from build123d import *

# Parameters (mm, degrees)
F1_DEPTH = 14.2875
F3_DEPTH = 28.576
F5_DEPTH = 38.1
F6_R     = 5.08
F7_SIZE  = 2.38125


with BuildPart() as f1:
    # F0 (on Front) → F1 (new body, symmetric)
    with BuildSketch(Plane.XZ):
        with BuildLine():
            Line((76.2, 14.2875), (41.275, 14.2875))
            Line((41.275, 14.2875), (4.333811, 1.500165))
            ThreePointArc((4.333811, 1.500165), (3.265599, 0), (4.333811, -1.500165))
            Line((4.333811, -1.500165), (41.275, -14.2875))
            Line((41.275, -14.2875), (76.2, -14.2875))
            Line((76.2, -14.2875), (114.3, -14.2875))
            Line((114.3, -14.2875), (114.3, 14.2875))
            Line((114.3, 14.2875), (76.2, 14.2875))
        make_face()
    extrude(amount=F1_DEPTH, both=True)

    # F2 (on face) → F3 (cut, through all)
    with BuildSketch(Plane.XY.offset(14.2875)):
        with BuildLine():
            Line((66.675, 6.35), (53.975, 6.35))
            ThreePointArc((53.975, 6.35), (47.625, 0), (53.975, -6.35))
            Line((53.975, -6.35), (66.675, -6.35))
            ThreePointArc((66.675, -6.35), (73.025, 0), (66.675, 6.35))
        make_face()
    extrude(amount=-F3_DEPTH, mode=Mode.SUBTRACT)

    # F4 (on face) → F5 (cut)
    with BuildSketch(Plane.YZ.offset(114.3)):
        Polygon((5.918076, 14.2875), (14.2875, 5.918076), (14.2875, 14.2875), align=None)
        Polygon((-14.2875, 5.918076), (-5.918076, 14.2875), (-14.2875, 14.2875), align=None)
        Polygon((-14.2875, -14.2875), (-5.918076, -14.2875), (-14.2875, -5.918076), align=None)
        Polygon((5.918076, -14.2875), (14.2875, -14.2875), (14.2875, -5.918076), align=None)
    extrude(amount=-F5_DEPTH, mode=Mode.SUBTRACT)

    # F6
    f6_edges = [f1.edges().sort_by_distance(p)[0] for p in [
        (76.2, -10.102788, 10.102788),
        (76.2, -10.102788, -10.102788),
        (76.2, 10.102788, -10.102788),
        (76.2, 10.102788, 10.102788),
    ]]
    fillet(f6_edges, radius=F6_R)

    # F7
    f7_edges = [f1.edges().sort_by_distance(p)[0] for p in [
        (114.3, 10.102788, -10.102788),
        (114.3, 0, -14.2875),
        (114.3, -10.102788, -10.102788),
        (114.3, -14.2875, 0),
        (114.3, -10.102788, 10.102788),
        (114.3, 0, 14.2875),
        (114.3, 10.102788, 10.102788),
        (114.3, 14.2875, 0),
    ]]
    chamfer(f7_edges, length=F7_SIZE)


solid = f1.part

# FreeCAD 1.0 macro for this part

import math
import FreeCAD as App
import Part
import Sketcher
from FreeCAD import Vector
Q = App.Units.Quantity


def edges_at(feature, points):
    """Names of the edges that pass closest to the given points."""
    edges = feature.Shape.Edges
    near = lambda p: min(range(len(edges)), key=lambda i: edges[i].distToShape(Part.Vertex(*p))[0])
    return sorted({f"Edge{near(p) + 1}" for p in points})

doc = App.newDocument("Part")
body = doc.addObject("PartDesign::Body", "Body")

# Sketch on XZ plane
sketch1 = body.newObject("Sketcher::SketchObject", "Sketch")
sketch1.AttachmentSupport = (doc.getObject("XZ_Plane"), [""])
sketch1.MapMode = "FlatFace"
sketch1.addGeometry(Part.LineSegment(Vector(41.3, 14.3, 0), Vector(4.3, 1.5, 0)), False)
sketch1.addGeometry(Part.ArcOfCircle(Part.Circle(Vector(4.9, 0, 0), Vector(0, 0, 1), 1.6), math.radians(109), math.radians(251)), False)
sketch1.addGeometry(Part.LineSegment(Vector(4.3, -1.5, 0), Vector(41.3, -14.3, 0)), False)
sketch1.addGeometry(Part.LineSegment(Vector(41.3, -14.3, 0), Vector(114.3, -14.3, 0)), False)
sketch1.addGeometry(Part.LineSegment(Vector(114.3, -14.3, 0), Vector(114.3, 14.3, 0)), False)
sketch1.addGeometry(Part.LineSegment(Vector(114.3, 14.3, 0), Vector(41.3, 14.3, 0)), False)
sketch1.addConstraint(Sketcher.Constraint("Tangent", 0, 2, 1, 1))
sketch1.addConstraint(Sketcher.Constraint("Tangent", 1, 2, 2, 1))
sketch1.addConstraint(Sketcher.Constraint("Coincident", 2, 2, 3, 1))
sketch1.addConstraint(Sketcher.Constraint("Coincident", 3, 2, 4, 1))
sketch1.addConstraint(Sketcher.Constraint("Coincident", 4, 2, 5, 1))
sketch1.addConstraint(Sketcher.Constraint("Coincident", 5, 2, 0, 1))
sketch1.addConstraint(Sketcher.Constraint("Horizontal", 3))
sketch1.addConstraint(Sketcher.Constraint("Vertical", 4))
sketch1.addConstraint(Sketcher.Constraint("Horizontal", 5))
sketch1.addConstraint(Sketcher.Constraint("Symmetric", 0, 2, 1, 2, -1))
sketch1.addConstraint(Sketcher.Constraint("Vertical", 2, 2, 5, 2))
sketch1.addConstraint(Sketcher.Constraint("Radius", 1, Q("0.0625 in")))
sketch1.addConstraint(Sketcher.Constraint("DistanceX", -1, 1, 3, 2, Q("4.5 in")))
sketch1.addConstraint(Sketcher.Constraint("DistanceX", 3, 1, 3, 2, Q("2.875 in")))
sketch1.addConstraint(Sketcher.Constraint("DistanceY", 4, 1, 4, 2, Q("1.125 in")))
sketch1.addConstraint(Sketcher.Constraint("DistanceX", -1, 1, 1, 3, 4.853098))
pad1 = body.newObject("PartDesign::Pad", "Pad")
pad1.Profile = sketch1
pad1.Length = Q("1.125 in")
pad1.Midplane = True

# Sketch on XY plane
sketch2 = body.newObject("Sketcher::SketchObject", "Sketch001")
sketch2.AttachmentSupport = (doc.getObject("XY_Plane"), [""])
sketch2.MapMode = "FlatFace"
sketch2.AttachmentOffset = App.Placement(Vector(0, 0, 0.5625 * 25.4), App.Rotation())
sketch2.addGeometry(Part.LineSegment(Vector(67, 6, 0), Vector(54, 6, 0)), False)
sketch2.addGeometry(Part.ArcOfCircle(Part.Circle(Vector(54, 0, 0), Vector(0, 0, 1), 6), math.radians(90), math.radians(270)), False)
sketch2.addGeometry(Part.LineSegment(Vector(54, -6, 0), Vector(67, -6, 0)), False)
sketch2.addGeometry(Part.ArcOfCircle(Part.Circle(Vector(67, 0, 0), Vector(0, 0, 1), 6), math.radians(-90), math.radians(90)), False)
sketch2.addConstraint(Sketcher.Constraint("Tangent", 0, 2, 1, 1))
sketch2.addConstraint(Sketcher.Constraint("Tangent", 1, 2, 2, 1))
sketch2.addConstraint(Sketcher.Constraint("Tangent", 2, 2, 3, 1))
sketch2.addConstraint(Sketcher.Constraint("Tangent", 3, 2, 0, 1))
sketch2.addConstraint(Sketcher.Constraint("Horizontal", 0))
sketch2.addConstraint(Sketcher.Constraint("Horizontal", 2))
sketch2.addConstraint(Sketcher.Constraint("PointOnObject", 1, 3, -1))
sketch2.addConstraint(Sketcher.Constraint("Radius", 1, Q("0.25 in")))
sketch2.addConstraint(Sketcher.Constraint("DistanceX", 0, 2, 0, 1, Q("0.5 in")))
sketch2.addConstraint(Sketcher.Constraint("DistanceX", -1, 1, 1, 3, Q("2.125 in")))
pocket1 = body.newObject("PartDesign::Pocket", "Pocket")
pocket1.Profile = sketch2
pocket1.Type = "ThroughAll"

# Sketch on YZ plane
sketch3 = body.newObject("Sketcher::SketchObject", "Sketch002")
sketch3.AttachmentSupport = (doc.getObject("YZ_Plane"), [""])
sketch3.MapMode = "FlatFace"
sketch3.AttachmentOffset = App.Placement(Vector(0, 0, 4.5 * 25.4), App.Rotation())
sketch3.addGeometry(Part.LineSegment(Vector(6, 14, 0), Vector(14, 6, 0)), False)
sketch3.addGeometry(Part.LineSegment(Vector(14, 6, 0), Vector(14, 14, 0)), False)
sketch3.addGeometry(Part.LineSegment(Vector(14, 14, 0), Vector(6, 14, 0)), False)
sketch3.addGeometry(Part.LineSegment(Vector(-14, 6, 0), Vector(-6, 14, 0)), False)
sketch3.addGeometry(Part.LineSegment(Vector(-6, 14, 0), Vector(-14, 14, 0)), False)
sketch3.addGeometry(Part.LineSegment(Vector(-14, 14, 0), Vector(-14, 6, 0)), False)
sketch3.addGeometry(Part.LineSegment(Vector(-14, -14, 0), Vector(-6, -14, 0)), False)
sketch3.addGeometry(Part.LineSegment(Vector(-6, -14, 0), Vector(-14, -6, 0)), False)
sketch3.addGeometry(Part.LineSegment(Vector(-14, -6, 0), Vector(-14, -14, 0)), False)
sketch3.addGeometry(Part.LineSegment(Vector(6, -14, 0), Vector(14, -14, 0)), False)
sketch3.addGeometry(Part.LineSegment(Vector(14, -14, 0), Vector(14, -6, 0)), False)
sketch3.addGeometry(Part.LineSegment(Vector(14, -6, 0), Vector(6, -14, 0)), False)
sketch3.addConstraint(Sketcher.Constraint("Coincident", 0, 2, 1, 1))
sketch3.addConstraint(Sketcher.Constraint("Coincident", 1, 2, 2, 1))
sketch3.addConstraint(Sketcher.Constraint("Coincident", 2, 2, 0, 1))
sketch3.addConstraint(Sketcher.Constraint("Coincident", 3, 2, 4, 1))
sketch3.addConstraint(Sketcher.Constraint("Coincident", 4, 2, 5, 1))
sketch3.addConstraint(Sketcher.Constraint("Coincident", 5, 2, 3, 1))
sketch3.addConstraint(Sketcher.Constraint("Coincident", 6, 2, 7, 1))
sketch3.addConstraint(Sketcher.Constraint("Coincident", 7, 2, 8, 1))
sketch3.addConstraint(Sketcher.Constraint("Coincident", 8, 2, 6, 1))
sketch3.addConstraint(Sketcher.Constraint("Coincident", 9, 2, 10, 1))
sketch3.addConstraint(Sketcher.Constraint("Coincident", 10, 2, 11, 1))
sketch3.addConstraint(Sketcher.Constraint("Coincident", 11, 2, 9, 1))
sketch3.addConstraint(Sketcher.Constraint("Vertical", 1))
sketch3.addConstraint(Sketcher.Constraint("Horizontal", 2))
sketch3.addConstraint(Sketcher.Constraint("Horizontal", 4))
sketch3.addConstraint(Sketcher.Constraint("Vertical", 5))
sketch3.addConstraint(Sketcher.Constraint("Horizontal", 6))
sketch3.addConstraint(Sketcher.Constraint("Vertical", 8))
sketch3.addConstraint(Sketcher.Constraint("Horizontal", 9))
sketch3.addConstraint(Sketcher.Constraint("Vertical", 10))
sketch3.addConstraint(Sketcher.Constraint("Symmetric", 2, 2, 6, 2, -1, 1))
sketch3.addConstraint(Sketcher.Constraint("Symmetric", 0, 2, 7, 2, -1, 1))
sketch3.addConstraint(Sketcher.Constraint("Symmetric", 4, 2, 9, 2, -1, 1))
sketch3.addConstraint(Sketcher.Constraint("Symmetric", 2, 2, 3, 2, -2))
sketch3.addConstraint(Sketcher.Constraint("Symmetric", 0, 2, 5, 2, -2))
sketch3.addConstraint(Sketcher.Constraint("Perpendicular", 0, 3))
sketch3.addConstraint(Sketcher.Constraint("Perpendicular", 7, 11))
sketch3.addConstraint(Sketcher.Constraint("Horizontal", 7, 2, 10, 2))
sketch3.addConstraint(Sketcher.Constraint("DistanceX", -1, 1, 0, 2, Q("0.5625 in")))
sketch3.addConstraint(Sketcher.Constraint("DistanceY", -1, 1, 1, 2, Q("0.5625 in")))
sketch3.addConstraint(Sketcher.Constraint("DistanceX", 2, 2, 2, 1, 8.369424))
pocket2 = body.newObject("PartDesign::Pocket", "Pocket001")
pocket2.Profile = sketch3
pocket2.Length = Q("1.5 in")
doc.recompute()

fillet = body.newObject("PartDesign::Fillet", "Fillet")
fillet.Base = (pocket2, edges_at(pocket2, [
    (76.2, -10.103, 10.103),
    (76.2, -10.103, -10.103),
    (76.2, 10.103, -10.103),
    (76.2, 10.103, 10.103),
]))
fillet.Radius = Q("0.2 in")
doc.recompute()

chamfer = body.newObject("PartDesign::Chamfer", "Chamfer")
chamfer.Base = (fillet, edges_at(fillet, [
    (114.3, 10.103, -10.103),
    (114.3, 0, -14.287),
    (114.3, -10.103, -10.103),
    (114.3, -14.287, 0),
    (114.3, -10.103, 10.103),
    (114.3, 0, 14.287),
    (114.3, 10.103, 10.103),
    (114.3, 14.287, 0),
]))
chamfer.Size = Q("0.09375 in")

doc.recompute()
